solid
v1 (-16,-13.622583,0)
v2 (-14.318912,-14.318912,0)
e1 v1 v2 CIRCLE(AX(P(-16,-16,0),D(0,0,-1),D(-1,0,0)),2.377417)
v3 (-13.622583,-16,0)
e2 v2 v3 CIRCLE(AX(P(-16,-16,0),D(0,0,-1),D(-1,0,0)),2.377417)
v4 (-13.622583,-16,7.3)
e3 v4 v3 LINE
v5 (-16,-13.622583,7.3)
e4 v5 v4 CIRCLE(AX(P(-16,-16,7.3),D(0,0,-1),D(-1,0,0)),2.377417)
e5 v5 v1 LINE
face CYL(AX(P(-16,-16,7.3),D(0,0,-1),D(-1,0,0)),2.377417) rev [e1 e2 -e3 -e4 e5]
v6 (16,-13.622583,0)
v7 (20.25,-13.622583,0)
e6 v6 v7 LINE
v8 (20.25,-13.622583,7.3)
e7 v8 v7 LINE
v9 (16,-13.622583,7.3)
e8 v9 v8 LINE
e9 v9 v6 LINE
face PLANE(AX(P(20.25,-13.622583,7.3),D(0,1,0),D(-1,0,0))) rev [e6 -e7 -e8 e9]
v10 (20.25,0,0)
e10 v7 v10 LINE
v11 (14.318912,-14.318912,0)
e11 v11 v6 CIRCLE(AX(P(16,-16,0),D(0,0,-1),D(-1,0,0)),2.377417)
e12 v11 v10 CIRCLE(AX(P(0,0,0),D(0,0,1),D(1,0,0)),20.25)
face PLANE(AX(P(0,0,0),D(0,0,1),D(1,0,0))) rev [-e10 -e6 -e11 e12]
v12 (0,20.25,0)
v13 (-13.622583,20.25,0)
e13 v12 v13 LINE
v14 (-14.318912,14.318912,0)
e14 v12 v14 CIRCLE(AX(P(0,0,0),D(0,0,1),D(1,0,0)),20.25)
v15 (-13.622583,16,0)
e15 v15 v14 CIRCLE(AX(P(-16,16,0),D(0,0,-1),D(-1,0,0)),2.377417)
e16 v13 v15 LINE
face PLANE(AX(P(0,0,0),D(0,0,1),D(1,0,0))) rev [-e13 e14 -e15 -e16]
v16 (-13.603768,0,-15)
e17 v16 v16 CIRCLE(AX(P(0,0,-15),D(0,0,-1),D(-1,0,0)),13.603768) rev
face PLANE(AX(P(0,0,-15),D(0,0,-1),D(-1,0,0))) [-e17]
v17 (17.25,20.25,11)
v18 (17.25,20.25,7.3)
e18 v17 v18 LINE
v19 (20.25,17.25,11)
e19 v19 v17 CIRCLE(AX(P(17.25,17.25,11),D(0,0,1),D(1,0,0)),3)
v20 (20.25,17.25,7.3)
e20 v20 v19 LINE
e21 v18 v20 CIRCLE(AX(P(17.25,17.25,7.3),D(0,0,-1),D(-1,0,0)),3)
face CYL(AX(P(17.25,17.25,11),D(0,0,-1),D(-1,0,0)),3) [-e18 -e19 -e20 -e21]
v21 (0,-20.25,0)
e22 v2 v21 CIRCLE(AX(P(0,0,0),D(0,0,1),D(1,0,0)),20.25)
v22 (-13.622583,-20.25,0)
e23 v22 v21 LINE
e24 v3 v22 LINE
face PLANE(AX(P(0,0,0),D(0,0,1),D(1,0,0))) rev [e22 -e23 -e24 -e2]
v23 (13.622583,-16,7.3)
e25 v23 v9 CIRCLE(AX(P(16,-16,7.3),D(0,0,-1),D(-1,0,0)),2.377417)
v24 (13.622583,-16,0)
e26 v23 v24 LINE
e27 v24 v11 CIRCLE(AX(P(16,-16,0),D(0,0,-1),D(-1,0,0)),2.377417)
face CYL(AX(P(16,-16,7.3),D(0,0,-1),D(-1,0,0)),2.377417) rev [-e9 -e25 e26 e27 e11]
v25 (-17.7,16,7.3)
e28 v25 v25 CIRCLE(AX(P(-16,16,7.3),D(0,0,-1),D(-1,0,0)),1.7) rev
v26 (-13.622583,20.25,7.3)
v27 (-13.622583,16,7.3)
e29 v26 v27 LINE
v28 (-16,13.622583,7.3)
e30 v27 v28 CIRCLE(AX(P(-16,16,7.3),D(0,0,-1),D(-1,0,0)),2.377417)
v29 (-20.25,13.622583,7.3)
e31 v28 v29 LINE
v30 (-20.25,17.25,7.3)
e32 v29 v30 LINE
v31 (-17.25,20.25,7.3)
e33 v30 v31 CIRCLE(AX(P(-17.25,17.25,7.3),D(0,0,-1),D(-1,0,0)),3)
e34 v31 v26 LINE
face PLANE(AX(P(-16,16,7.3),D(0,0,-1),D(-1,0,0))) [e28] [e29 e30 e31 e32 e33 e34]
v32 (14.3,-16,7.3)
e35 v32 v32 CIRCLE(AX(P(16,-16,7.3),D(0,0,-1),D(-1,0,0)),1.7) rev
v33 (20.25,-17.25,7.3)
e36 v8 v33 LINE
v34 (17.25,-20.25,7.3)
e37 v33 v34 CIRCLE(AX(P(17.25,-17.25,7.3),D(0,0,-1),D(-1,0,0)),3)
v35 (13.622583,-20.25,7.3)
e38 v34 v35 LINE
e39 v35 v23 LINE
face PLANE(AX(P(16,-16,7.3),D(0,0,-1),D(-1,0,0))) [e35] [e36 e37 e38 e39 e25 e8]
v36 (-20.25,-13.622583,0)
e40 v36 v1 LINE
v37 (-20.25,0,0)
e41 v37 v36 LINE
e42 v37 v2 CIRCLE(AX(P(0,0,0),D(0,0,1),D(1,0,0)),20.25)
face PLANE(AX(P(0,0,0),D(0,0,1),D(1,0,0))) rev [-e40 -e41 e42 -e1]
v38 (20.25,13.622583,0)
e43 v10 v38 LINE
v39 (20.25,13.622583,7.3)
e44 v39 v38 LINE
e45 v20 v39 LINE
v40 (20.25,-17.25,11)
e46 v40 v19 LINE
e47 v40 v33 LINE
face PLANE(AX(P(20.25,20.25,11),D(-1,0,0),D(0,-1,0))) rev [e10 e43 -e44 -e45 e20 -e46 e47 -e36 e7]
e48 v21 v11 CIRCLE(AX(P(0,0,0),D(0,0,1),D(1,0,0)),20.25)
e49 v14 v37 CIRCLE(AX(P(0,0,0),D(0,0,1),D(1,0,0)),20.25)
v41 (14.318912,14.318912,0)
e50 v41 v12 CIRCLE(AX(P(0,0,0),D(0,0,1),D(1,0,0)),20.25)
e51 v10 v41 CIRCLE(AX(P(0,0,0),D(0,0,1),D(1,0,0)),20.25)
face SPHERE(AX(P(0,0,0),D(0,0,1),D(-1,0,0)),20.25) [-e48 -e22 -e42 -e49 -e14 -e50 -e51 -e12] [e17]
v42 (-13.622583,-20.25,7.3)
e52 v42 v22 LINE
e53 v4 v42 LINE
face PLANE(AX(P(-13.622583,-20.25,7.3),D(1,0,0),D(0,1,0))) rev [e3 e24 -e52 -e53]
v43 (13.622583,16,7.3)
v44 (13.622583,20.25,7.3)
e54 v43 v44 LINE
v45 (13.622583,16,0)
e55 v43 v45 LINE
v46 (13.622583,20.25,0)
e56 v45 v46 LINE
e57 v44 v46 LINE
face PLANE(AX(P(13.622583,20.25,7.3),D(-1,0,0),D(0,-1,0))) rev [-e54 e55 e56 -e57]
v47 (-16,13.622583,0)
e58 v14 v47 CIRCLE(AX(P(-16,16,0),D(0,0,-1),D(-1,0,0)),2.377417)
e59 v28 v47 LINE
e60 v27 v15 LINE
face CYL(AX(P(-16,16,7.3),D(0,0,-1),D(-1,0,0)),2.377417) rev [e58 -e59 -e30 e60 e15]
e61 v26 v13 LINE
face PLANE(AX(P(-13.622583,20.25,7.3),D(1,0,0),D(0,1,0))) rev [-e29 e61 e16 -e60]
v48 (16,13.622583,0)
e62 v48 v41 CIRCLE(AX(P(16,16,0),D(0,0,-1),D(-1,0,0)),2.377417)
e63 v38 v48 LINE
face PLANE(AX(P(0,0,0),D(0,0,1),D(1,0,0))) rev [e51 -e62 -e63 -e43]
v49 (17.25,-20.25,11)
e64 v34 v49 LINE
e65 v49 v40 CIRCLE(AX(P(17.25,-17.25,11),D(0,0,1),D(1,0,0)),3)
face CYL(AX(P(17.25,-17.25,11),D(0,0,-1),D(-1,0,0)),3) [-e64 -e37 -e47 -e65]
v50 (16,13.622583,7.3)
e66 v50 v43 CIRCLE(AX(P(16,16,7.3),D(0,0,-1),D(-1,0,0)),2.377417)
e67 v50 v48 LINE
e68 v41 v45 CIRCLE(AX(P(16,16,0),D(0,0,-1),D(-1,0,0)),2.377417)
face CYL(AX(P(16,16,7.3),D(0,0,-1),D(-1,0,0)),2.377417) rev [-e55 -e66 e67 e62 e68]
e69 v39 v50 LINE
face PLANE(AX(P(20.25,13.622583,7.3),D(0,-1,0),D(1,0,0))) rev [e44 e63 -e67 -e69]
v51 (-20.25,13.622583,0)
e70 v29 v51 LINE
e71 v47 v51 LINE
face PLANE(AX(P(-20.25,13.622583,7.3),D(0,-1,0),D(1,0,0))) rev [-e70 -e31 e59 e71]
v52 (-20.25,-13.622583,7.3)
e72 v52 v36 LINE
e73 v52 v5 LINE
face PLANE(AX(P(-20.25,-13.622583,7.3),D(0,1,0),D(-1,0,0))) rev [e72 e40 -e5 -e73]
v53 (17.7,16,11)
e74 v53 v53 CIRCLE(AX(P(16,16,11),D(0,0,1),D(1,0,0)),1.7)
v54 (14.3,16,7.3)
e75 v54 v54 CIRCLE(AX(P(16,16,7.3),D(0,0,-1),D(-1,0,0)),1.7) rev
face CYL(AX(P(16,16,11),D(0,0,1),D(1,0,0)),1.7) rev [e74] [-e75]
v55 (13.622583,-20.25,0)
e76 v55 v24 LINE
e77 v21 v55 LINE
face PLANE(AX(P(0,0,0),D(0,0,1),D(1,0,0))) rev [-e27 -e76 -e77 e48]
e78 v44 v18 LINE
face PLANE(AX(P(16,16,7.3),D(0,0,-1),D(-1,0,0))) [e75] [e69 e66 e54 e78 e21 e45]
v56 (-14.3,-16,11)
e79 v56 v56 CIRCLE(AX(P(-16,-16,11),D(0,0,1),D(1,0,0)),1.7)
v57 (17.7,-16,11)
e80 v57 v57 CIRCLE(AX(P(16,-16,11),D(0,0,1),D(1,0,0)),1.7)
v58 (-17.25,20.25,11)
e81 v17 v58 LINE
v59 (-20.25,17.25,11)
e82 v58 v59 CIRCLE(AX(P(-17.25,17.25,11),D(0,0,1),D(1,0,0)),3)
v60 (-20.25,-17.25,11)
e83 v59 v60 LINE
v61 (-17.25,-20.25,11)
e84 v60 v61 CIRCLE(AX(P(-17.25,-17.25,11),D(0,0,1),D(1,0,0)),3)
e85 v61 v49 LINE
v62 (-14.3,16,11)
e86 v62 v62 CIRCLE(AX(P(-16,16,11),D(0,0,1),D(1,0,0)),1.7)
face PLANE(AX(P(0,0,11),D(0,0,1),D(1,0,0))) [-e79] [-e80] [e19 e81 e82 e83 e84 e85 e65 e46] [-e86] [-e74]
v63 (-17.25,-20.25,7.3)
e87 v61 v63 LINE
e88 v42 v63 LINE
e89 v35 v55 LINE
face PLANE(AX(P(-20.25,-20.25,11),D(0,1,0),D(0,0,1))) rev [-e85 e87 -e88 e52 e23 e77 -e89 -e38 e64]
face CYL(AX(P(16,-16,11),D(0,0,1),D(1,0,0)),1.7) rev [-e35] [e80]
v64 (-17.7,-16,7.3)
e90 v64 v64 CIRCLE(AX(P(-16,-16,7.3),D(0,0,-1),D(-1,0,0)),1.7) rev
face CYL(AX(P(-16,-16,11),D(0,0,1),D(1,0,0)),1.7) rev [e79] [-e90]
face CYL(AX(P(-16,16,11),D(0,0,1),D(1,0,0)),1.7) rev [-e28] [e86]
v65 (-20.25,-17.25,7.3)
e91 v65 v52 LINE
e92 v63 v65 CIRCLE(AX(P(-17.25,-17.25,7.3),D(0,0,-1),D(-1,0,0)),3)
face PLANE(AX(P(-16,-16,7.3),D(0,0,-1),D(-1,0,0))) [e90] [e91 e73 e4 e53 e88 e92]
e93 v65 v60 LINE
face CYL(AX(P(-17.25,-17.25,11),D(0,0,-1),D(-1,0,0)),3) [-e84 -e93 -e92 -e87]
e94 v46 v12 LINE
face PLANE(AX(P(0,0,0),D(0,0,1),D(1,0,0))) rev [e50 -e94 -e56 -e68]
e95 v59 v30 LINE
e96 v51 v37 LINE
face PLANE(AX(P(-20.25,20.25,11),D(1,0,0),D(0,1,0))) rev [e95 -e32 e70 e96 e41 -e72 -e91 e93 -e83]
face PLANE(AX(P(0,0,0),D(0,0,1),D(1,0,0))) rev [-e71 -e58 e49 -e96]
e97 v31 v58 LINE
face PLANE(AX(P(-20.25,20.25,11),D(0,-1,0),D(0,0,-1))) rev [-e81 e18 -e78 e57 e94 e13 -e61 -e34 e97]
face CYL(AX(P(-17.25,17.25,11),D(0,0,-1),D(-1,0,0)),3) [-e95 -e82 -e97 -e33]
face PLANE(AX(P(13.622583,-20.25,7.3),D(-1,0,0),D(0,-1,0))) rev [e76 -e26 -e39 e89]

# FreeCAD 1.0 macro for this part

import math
import FreeCAD as App
import Part
import Sketcher
from FreeCAD import Vector


def edges_at(feature, points):
    """Names of the edges that pass closest to the given points."""
    edges = feature.Shape.Edges
    near = lambda p: min(range(len(edges)), key=lambda i: edges[i].distToShape(Part.Vertex(*p))[0])
    return sorted({f"Edge{near(p) + 1}" for p in points})


def add_polygon(sketch, points):
    """Adds a closed chain of lines whose ends are joined by coincident constraints."""
    first, n = sketch.GeometryCount, len(points)
    for a, b in zip(points, points[1:] + points[:1]):
        sketch.addGeometry(Part.LineSegment(App.Vector(*a, 0), App.Vector(*b, 0)), False)
    for i in range(n):
        sketch.addConstraint(Sketcher.Constraint("Coincident", first + i, 2, first + (i + 1) % n, 1))

doc = App.newDocument("Part")
body = doc.addObject("PartDesign::Body", "Body")

# Sketch on XY plane
sketch1 = doc.addObject("Sketcher::SketchObject", "Sketch")
body.addObject(sketch1)
sketch1.AttachmentSupport = (doc.XY_Plane, [""])
sketch1.MapMode = "FlatFace"
add_polygon(sketch1, [(-20, 20), (-20, -20), (20, -20), (20, 20)])  # lines 0-3
sketch1.addConstraint([
    Sketcher.Constraint("Vertical", 0),
    Sketcher.Constraint("Horizontal", 1),
    Sketcher.Constraint("Vertical", 2),
    Sketcher.Constraint("Horizontal", 3),
    Sketcher.Constraint("Symmetric", 0, 2, 2, 2, -1, 1),
    Sketcher.Constraint("Equal", 3, 0),
    Sketcher.Constraint("DistanceX", 1, 1, 1, 2, 40.5),
])
pad1 = doc.addObject("PartDesign::Pad", "Pad")
body.addObject(pad1)
pad1.Profile = sketch1
pad1.Length = 11

# Sketch on XY plane
sketch2 = doc.addObject("Sketcher::SketchObject", "Sketch001")
body.addObject(sketch2)
sketch2.AttachmentSupport = (doc.XY_Plane, [""])
sketch2.MapMode = "FlatFace"
sketch2.AttachmentOffset = App.Placement(Vector(0, 0, 11), App.Rotation())
sketch2.addGeometry([
    Part.Circle(Vector(-16, 16, 0), Vector(0, 0, 1), 1.7),
    Part.Circle(Vector(16, 16, 0), Vector(0, 0, 1), 1.7),
    Part.Circle(Vector(16, -16, 0), Vector(0, 0, 1), 1.7),
    Part.Circle(Vector(-16, -16, 0), Vector(0, 0, 1), 1.7),
], False)
sketch2.addConstraint([
    Sketcher.Constraint("Equal", 0, 1),
    Sketcher.Constraint("Equal", 1, 2),
    Sketcher.Constraint("Equal", 2, 3),
    Sketcher.Constraint("Symmetric", 0, 3, 2, 3, -1, 1),
    Sketcher.Constraint("Symmetric", 1, 3, 3, 3, -1, 1),
    Sketcher.Constraint("Symmetric", 0, 3, 1, 3, -2),
    Sketcher.Constraint("Diameter", 0, 3.4),
    Sketcher.Constraint("DistanceX", 0, 3, -1, 1, 16.0),
    Sketcher.Constraint("DistanceY", -1, 1, 0, 3, 16.0),
])
doc.recompute()
hole = doc.addObject("PartDesign::Hole", "Hole")
body.addObject(hole)
hole.Profile = sketch2
hole.ThreadType = "None"
hole.Diameter = 3.4
hole.DepthType = "ThroughAll"

# Sketch on XZ plane
sketch3 = doc.addObject("Sketcher::SketchObject", "Sketch002")
body.addObject(sketch3)
sketch3.AttachmentSupport = (doc.XZ_Plane, [""])
sketch3.MapMode = "FlatFace"
sketch3.addGeometry([
    Part.LineSegment(Vector(0, 0, 0), Vector(-20, 0, 0)),
    Part.ArcOfCircle(Part.Circle(Vector(0, 0, 0), Vector(0, 0, 1), 20), math.radians(180), math.radians(270)),
    Part.LineSegment(Vector(0, -20, 0), Vector(0, 0, 0)),
], False)
sketch3.addConstraint([
    Sketcher.Constraint("Coincident", 0, 2, 1, 1),
    Sketcher.Constraint("Coincident", 1, 2, 2, 1),
    Sketcher.Constraint("Coincident", 2, 2, 0, 1),
    Sketcher.Constraint("Horizontal", 0),
    Sketcher.Constraint("Vertical", 2),
    Sketcher.Constraint("Coincident", 1, 3, -1, 1),
    Sketcher.Constraint("Coincident", 2, 2, -1, 1),
    Sketcher.Constraint("Radius", 1, 20.25),
])
revolution = doc.addObject("PartDesign::Revolution", "Revolution")
body.addObject(revolution)
revolution.Profile = sketch3
revolution.ReferenceAxis = (sketch3, ["V_Axis"])
revolution.Angle = 360

# Sketch on XY plane
sketch4 = doc.addObject("Sketcher::SketchObject", "Sketch003")
body.addObject(sketch4)
sketch4.AttachmentSupport = (doc.XY_Plane, [""])
sketch4.MapMode = "FlatFace"
sketch4.AttachmentOffset = App.Placement(Vector(0, 0, -15), App.Rotation())
add_polygon(sketch4, [(20, 20), (20, -20), (-20, -20), (-20, 20)])  # lines 0-3
sketch4.addConstraint([
    Sketcher.Constraint("Vertical", 0),
    Sketcher.Constraint("Horizontal", 1),
    Sketcher.Constraint("Vertical", 2),
    Sketcher.Constraint("Horizontal", 3),
    Sketcher.Constraint("Symmetric", 0, 2, 2, 2, -1, 1),
    Sketcher.Constraint("Equal", 3, 0),
    Sketcher.Constraint("DistanceX", 1, 2, 1, 1, 40.5),
])
pocket1 = doc.addObject("PartDesign::Pocket", "Pocket")
body.addObject(pocket1)
pocket1.Profile = sketch4
pocket1.Length = 11

# Sketch on XY plane
sketch5 = doc.addObject("Sketcher::SketchObject", "Sketch004")
body.addObject(sketch5)
sketch5.AttachmentSupport = (doc.XY_Plane, [""])
sketch5.MapMode = "FlatFace"
sketch5.addGeometry([
    Part.LineSegment(Vector(13.6, 20.2, 0), Vector(20.2, 20.2, 0)),  # 0
    Part.LineSegment(Vector(20.2, 20.2, 0), Vector(20.2, 13.6, 0)),  # 1
    Part.LineSegment(Vector(20.2, 13.6, 0), Vector(16, 13.6, 0)),  # 2
    Part.ArcOfCircle(Part.Circle(Vector(16, 16, 0), Vector(0, 0, 1), 2.4), math.radians(180), math.radians(270)),  # 3
    Part.LineSegment(Vector(13.6, 16, 0), Vector(13.6, 20.2, 0)),  # 4
    Part.LineSegment(Vector(-20.2, 13.6, 0), Vector(-20.2, 20.2, 0)),  # 5
    Part.LineSegment(Vector(-20.2, 20.2, 0), Vector(-13.6, 20.2, 0)),  # 6
    Part.LineSegment(Vector(-13.6, 20.2, 0), Vector(-13.6, 16, 0)),  # 7
    Part.ArcOfCircle(Part.Circle(Vector(-16, 16, 0), Vector(0, 0, 1), 2.4), math.radians(-90), math.radians(0)),  # 8
    Part.LineSegment(Vector(-16, 13.6, 0), Vector(-20.2, 13.6, 0)),  # 9
    Part.LineSegment(Vector(-13.6, -20.2, 0), Vector(-20.2, -20.2, 0)),  # 10
    Part.LineSegment(Vector(-20.2, -20.2, 0), Vector(-20.2, -13.6, 0)),  # 11
    Part.LineSegment(Vector(-20.2, -13.6, 0), Vector(-16, -13.6, 0)),  # 12
    Part.ArcOfCircle(Part.Circle(Vector(-16, -16, 0), Vector(0, 0, 1), 2.4), math.radians(0), math.radians(90)),  # 13
    Part.LineSegment(Vector(-13.6, -16, 0), Vector(-13.6, -20.2, 0)),  # 14
    Part.LineSegment(Vector(20.2, -13.6, 0), Vector(20.2, -20.2, 0)),  # 15
    Part.LineSegment(Vector(20.2, -20.2, 0), Vector(13.6, -20.2, 0)),  # 16
    Part.LineSegment(Vector(13.6, -20.2, 0), Vector(13.6, -16, 0)),  # 17
    Part.ArcOfCircle(Part.Circle(Vector(16, -16, 0), Vector(0, 0, 1), 2.4), math.radians(90), math.radians(180)),  # 18
    Part.LineSegment(Vector(16, -13.6, 0), Vector(20.2, -13.6, 0)),  # 19
], False)
sketch5.addConstraint([
    Sketcher.Constraint("Coincident", 0, 2, 1, 1),
    Sketcher.Constraint("Coincident", 1, 2, 2, 1),
    Sketcher.Constraint("Tangent", 2, 2, 3, 2),
    Sketcher.Constraint("Tangent", 3, 1, 4, 1),
    Sketcher.Constraint("Coincident", 4, 2, 0, 1),
    Sketcher.Constraint("Coincident", 5, 2, 6, 1),
    Sketcher.Constraint("Coincident", 6, 2, 7, 1),
    Sketcher.Constraint("Tangent", 7, 2, 8, 2),
    Sketcher.Constraint("Tangent", 8, 1, 9, 1),
    Sketcher.Constraint("Coincident", 9, 2, 5, 1),
    Sketcher.Constraint("Coincident", 10, 2, 11, 1),
    Sketcher.Constraint("Coincident", 11, 2, 12, 1),
    Sketcher.Constraint("Tangent", 12, 2, 13, 2),
    Sketcher.Constraint("Tangent", 13, 1, 14, 1),
    Sketcher.Constraint("Coincident", 14, 2, 10, 1),
    Sketcher.Constraint("Coincident", 15, 2, 16, 1),
    Sketcher.Constraint("Coincident", 16, 2, 17, 1),
    Sketcher.Constraint("Tangent", 17, 2, 18, 2),
    Sketcher.Constraint("Tangent", 18, 1, 19, 1),
    Sketcher.Constraint("Coincident", 19, 2, 15, 1),
    Sketcher.Constraint("Horizontal", 0),
    Sketcher.Constraint("Vertical", 1),
    Sketcher.Constraint("Horizontal", 2),
    Sketcher.Constraint("Vertical", 4),
    Sketcher.Constraint("Vertical", 5),
    Sketcher.Constraint("Horizontal", 6),
    Sketcher.Constraint("Vertical", 7),
    Sketcher.Constraint("Horizontal", 9),
    Sketcher.Constraint("Horizontal", 10),
    Sketcher.Constraint("Vertical", 11),
    Sketcher.Constraint("Horizontal", 12),
    Sketcher.Constraint("Vertical", 14),
    Sketcher.Constraint("Vertical", 15),
    Sketcher.Constraint("Horizontal", 16),
    Sketcher.Constraint("Vertical", 17),
    Sketcher.Constraint("Horizontal", 19),
    Sketcher.Constraint("Equal", 3, 8),
    Sketcher.Constraint("Equal", 8, 13),
    Sketcher.Constraint("Equal", 13, 18),
    Sketcher.Constraint("Symmetric", 3, 3, 13, 3, -1, 1),
    Sketcher.Constraint("Symmetric", 8, 3, 18, 3, -1, 1),
    Sketcher.Constraint("Symmetric", 0, 2, 10, 2, -1, 1),
    Sketcher.Constraint("Symmetric", 5, 2, 15, 2, -1, 1),
    Sketcher.Constraint("Symmetric", 3, 3, 8, 3, -2),
    Sketcher.Constraint("Symmetric", 0, 2, 5, 2, -2),
    Sketcher.Constraint("Equal", 16, 1),
    Sketcher.Constraint("DistanceX", -1, 1, 3, 3, 16.0),
    Sketcher.Constraint("DistanceY", -1, 1, 3, 3, 16.0),
    Sketcher.Constraint("DistanceX", 2, 2, 2, 1, 4.25),
    Sketcher.Constraint("Radius", 3, 2.377417),
])
pocket2 = doc.addObject("PartDesign::Pocket", "Pocket001")
body.addObject(pocket2)
pocket2.Profile = sketch5
pocket2.Length = 7.3
pocket2.Reversed = True
doc.recompute()

fillet = doc.addObject("PartDesign::Fillet", "Fillet")
body.addObject(fillet)
fillet.Base = (pocket2, edges_at(pocket2, [
    (20.25, -20.25, 9.15),
    (-20.25, -20.25, 9.15),
    (-20.25, 20.25, 9.15),
    (20.25, 20.25, 9.15),
]))
fillet.Radius = 3

doc.recompute()
